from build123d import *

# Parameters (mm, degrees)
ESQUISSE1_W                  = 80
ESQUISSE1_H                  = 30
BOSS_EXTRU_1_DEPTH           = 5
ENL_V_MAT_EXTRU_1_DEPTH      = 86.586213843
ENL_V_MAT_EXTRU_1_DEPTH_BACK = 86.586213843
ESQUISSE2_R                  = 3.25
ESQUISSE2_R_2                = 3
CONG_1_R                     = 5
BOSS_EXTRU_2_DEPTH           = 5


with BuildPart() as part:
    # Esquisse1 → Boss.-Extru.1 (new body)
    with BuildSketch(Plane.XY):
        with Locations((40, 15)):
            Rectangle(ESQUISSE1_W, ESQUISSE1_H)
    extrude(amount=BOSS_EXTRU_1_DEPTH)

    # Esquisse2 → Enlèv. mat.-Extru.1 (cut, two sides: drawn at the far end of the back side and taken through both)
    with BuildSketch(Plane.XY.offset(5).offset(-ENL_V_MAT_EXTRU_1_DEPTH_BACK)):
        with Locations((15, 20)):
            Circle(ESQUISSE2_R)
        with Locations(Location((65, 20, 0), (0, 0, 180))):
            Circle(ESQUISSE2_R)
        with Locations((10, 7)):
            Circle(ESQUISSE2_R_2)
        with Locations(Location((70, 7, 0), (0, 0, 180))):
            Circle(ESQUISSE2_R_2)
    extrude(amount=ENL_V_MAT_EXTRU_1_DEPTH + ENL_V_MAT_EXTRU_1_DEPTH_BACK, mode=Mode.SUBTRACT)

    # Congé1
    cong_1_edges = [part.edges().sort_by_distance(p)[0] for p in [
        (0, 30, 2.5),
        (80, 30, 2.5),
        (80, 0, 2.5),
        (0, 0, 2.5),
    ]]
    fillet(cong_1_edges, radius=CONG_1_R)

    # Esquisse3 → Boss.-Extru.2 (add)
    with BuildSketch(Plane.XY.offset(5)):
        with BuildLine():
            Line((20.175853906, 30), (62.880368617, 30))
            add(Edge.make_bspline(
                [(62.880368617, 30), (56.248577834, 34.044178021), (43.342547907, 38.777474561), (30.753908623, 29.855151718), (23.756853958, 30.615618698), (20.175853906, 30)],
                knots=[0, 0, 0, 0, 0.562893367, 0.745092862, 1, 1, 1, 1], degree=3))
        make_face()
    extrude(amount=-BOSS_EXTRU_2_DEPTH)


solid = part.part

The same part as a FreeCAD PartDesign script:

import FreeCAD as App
import Part
import Sketcher

V = App.Vector
Q = App.Units.Quantity


def edges_at(feature, points):
    """Names of the edges that pass closest to the given points."""
    edges = feature.Shape.Edges
    near = lambda p: min(range(len(edges)), key=lambda i: edges[i].distToShape(Part.Vertex(*p))[0])
    return sorted({f"Edge{near(p) + 1}" for p in points})

doc = App.newDocument("Part")
params = doc.addObject("Spreadsheet::Sheet", "Params")
for row, (alias, value) in enumerate([
    ("sketch1_width", "80 mm"),
    ("sketch1_height", "30 mm"),
    ("pad1_length", "5 mm"),
    ("sketch2_diameter", "6 mm"),
    ("sketch2_diameter2", "6.5 mm"),
    ("fillet_radius", "5 mm"),
    ("pad2_length", "5 mm"),
], start=1):
    params.set(f"A{row}", alias)
    params.set(f"B{row}", "=" + value)
    params.setAlias(f"B{row}", alias)

body = doc.addObject("PartDesign::Body", "Body")

# Sketch on XY plane
sketch1 = body.newObject("Sketcher::SketchObject", "Sketch")
sketch1.AttachmentSupport = (doc.getObject("XY_Plane"), [""])
sketch1.MapMode = "FlatFace"
sketch1.addGeometry(Part.LineSegment(V(0, 30, 0), V(0, 0, 0)), False)
sketch1.addGeometry(Part.LineSegment(V(0, 0, 0), V(80, 0, 0)), False)
sketch1.addGeometry(Part.LineSegment(V(80, 0, 0), V(80, 30, 0)), False)
sketch1.addGeometry(Part.LineSegment(V(80, 30, 0), V(0, 30, 0)), False)
sketch1.addConstraint(Sketcher.Constraint("Coincident", 0, 2, 1, 1))
sketch1.addConstraint(Sketcher.Constraint("Coincident", 1, 2, 2, 1))
sketch1.addConstraint(Sketcher.Constraint("Coincident", 2, 2, 3, 1))
sketch1.addConstraint(Sketcher.Constraint("Coincident", 3, 2, 0, 1))
sketch1.addConstraint(Sketcher.Constraint("Vertical", 0))
sketch1.addConstraint(Sketcher.Constraint("Horizontal", 1))
sketch1.addConstraint(Sketcher.Constraint("Vertical", 2))
sketch1.addConstraint(Sketcher.Constraint("Horizontal", 3))
sketch1.addConstraint(Sketcher.Constraint("Coincident", 0, 2, -1, 1))
sketch1.addConstraint(Sketcher.Constraint("DistanceX", 1, 1, 1, 2, Q("80 mm")))
sketch1.addConstraint(Sketcher.Constraint("DistanceY", 0, 2, 0, 1, Q("30 mm")))
sketch1.setExpression("Constraints[9]", "Params.sketch1_width")
sketch1.setExpression("Constraints[10]", "Params.sketch1_height")
pad1 = body.newObject("PartDesign::Pad", "Pad")
pad1.Profile = sketch1
pad1.setExpression("Length", "Params.pad1_length")

# Sketch on XY plane
sketch2 = body.newObject("Sketcher::SketchObject", "Sketch001")
sketch2.AttachmentSupport = (doc.getObject("XY_Plane"), [""])
sketch2.MapMode = "FlatFace"
sketch2.AttachmentOffset = App.Placement(V(0, 0, 5), App.Rotation())
sketch2.addGeometry(Part.Circle(V(15, 20, 0), V(0, 0, 1), 3.25), False)
sketch2.addGeometry(Part.Circle(V(65, 20, 0), V(0, 0, 1), 3.25), False)
sketch2.addGeometry(Part.Circle(V(10, 7, 0), V(0, 0, 1), 3), False)
sketch2.addGeometry(Part.Circle(V(70, 7, 0), V(0, 0, 1), 3), False)
sketch2.addConstraint(Sketcher.Constraint("Equal", 0, 1))
sketch2.addConstraint(Sketcher.Constraint("Equal", 2, 3))
sketch2.addConstraint(Sketcher.Constraint("Horizontal", 0, 3, 1, 3))
sketch2.addConstraint(Sketcher.Constraint("Horizontal", 2, 3, 3, 3))
sketch2.addConstraint(Sketcher.Constraint("Diameter", 2, Q("6 mm")))
sketch2.addConstraint(Sketcher.Constraint("Diameter", 0, Q("6.5 mm")))
sketch2.addConstraint(Sketcher.Constraint("DistanceX", -1, 1, 0, 3, Q("15 mm")))
sketch2.addConstraint(Sketcher.Constraint("DistanceY", -1, 1, 0, 3, Q("20 mm")))
sketch2.addConstraint(Sketcher.Constraint("DistanceX", -1, 1, 1, 3, Q("65 mm")))
sketch2.addConstraint(Sketcher.Constraint("DistanceX", -1, 1, 2, 3, Q("10 mm")))
sketch2.addConstraint(Sketcher.Constraint("DistanceY", -1, 1, 2, 3, Q("7 mm")))
sketch2.addConstraint(Sketcher.Constraint("DistanceX", -1, 1, 3, 3, Q("70 mm")))
sketch2.setExpression("Constraints[4]", "Params.sketch2_diameter")
sketch2.setExpression("Constraints[5]", "Params.sketch2_diameter2")
pocket1 = body.newObject("PartDesign::Pocket", "Pocket")
pocket1.Profile = sketch2
pocket1.Type = "ThroughAll"
pocket1.Midplane = True
doc.recompute()

fillet = body.newObject("PartDesign::Fillet", "Fillet")
fillet.Base = (pocket1, edges_at(pocket1, [
    (0, 30, 2.5),
    (80, 30, 2.5),
    (80, 0, 2.5),
    (0, 0, 2.5),
]))
fillet.setExpression("Radius", "Params.fillet_radius")

# Sketch on XY plane
sketch3 = body.newObject("Sketcher::SketchObject", "Sketch002")
sketch3.AttachmentSupport = (doc.getObject("XY_Plane"), [""])
sketch3.MapMode = "FlatFace"
sketch3.AttachmentOffset = App.Placement(V(0, 0, 5), App.Rotation())
sketch3.addGeometry(Part.LineSegment(V(20.175854, 30, 0), V(62.880369, 30, 0)), False)
sketch3.addGeometry(Part.BSplineCurve([V(62.880369, 30, 0), V(56.248578, 34.044178, 0), V(43.342548, 38.777475, 0), V(30.753909, 29.855152, 0), V(23.756854, 30.615619, 0), V(20.175854, 30, 0)], [4, 1, 1, 4], [0, 0.562893367, 0.745092862, 1], False, 3, [1, 1, 1, 1, 1, 1], False), False)
sketch3.addConstraint(Sketcher.Constraint("Block", 1))
sketch3.addConstraint(Sketcher.Constraint("Coincident", 0, 1, 1, 2))
sketch3.addConstraint(Sketcher.Constraint("Coincident", 1, 1, 0, 2))
pad2 = body.newObject("PartDesign::Pad", "Pad001")
pad2.Profile = sketch3
pad2.setExpression("Length", "Params.pad2_length")
pad2.Reversed = True

doc.recompute()
